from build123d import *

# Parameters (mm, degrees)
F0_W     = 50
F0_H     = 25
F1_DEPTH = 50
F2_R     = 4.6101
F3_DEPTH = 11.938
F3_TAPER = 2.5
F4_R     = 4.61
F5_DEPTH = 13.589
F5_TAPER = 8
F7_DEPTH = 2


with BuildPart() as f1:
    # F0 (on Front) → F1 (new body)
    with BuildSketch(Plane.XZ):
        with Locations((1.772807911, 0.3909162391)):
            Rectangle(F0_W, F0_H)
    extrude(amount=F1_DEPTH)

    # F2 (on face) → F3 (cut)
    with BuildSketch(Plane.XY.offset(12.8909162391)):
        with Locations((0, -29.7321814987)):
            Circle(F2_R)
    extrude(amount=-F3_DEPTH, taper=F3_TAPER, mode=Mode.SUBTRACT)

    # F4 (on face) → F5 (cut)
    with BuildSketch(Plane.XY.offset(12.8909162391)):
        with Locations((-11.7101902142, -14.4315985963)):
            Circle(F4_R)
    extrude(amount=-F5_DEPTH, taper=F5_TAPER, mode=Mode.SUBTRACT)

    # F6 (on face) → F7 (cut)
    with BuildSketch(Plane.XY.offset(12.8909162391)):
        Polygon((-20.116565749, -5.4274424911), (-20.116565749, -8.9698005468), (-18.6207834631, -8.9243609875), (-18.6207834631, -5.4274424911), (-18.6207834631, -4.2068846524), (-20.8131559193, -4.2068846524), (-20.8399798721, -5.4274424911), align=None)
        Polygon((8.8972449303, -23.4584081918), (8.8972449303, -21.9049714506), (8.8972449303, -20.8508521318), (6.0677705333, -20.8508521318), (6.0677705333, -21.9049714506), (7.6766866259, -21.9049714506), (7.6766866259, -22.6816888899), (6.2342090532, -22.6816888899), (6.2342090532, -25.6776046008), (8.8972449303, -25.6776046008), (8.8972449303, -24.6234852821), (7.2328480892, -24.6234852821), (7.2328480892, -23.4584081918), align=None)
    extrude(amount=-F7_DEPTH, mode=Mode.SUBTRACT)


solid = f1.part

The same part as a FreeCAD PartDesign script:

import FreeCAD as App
import Part
import Sketcher
Q = App.Units.Quantity


def add_polygon(sketch, points):
    """Adds a closed chain of lines whose ends are joined by coincident constraints."""
    first, n = sketch.GeometryCount, len(points)
    for a, b in zip(points, points[1:] + points[:1]):
        sketch.addGeometry(Part.LineSegment(App.Vector(*a, 0), App.Vector(*b, 0)), False)
    for i in range(n):
        sketch.addConstraint(Sketcher.Constraint("Coincident", first + i, 2, first + (i + 1) % n, 1))

doc = App.newDocument("Part")
params = doc.addObject("Spreadsheet::Sheet", "Params")
for row, (alias, value) in enumerate([
    ("sketch1_width", "50 mm"),
    ("sketch1_height", "25 mm"),
    ("pad1_length", "50 mm"),
    ("pocket1_length", "11.938 mm"),
    ("pocket1_taper", "-2.5 deg"),
    ("sketch3_diameter", "9.22 mm"),
    ("pocket2_length", "13.589 mm"),
    ("pocket2_taper", "-8 deg"),
    ("pocket3_length", "2 mm"),
], start=1):
    params.set(f"A{row}", alias)
    params.set(f"B{row}", "=" + value)
    params.setAlias(f"B{row}", alias)

body = doc.addObject("PartDesign::Body", "Body")

# Sketch on XZ plane
sketch1 = body.newObject("Sketcher::SketchObject", "Sketch")
sketch1.AttachmentSupport = (doc.getObject("XZ_Plane"), [""])
sketch1.MapMode = "FlatFace"
add_polygon(sketch1, [(-23.227192, 12.890916), (-23.227192, -12.109084), (26.772808, -12.109084), (26.772808, 12.890916)])  # lines 0-3
sketch1.addConstraint(Sketcher.Constraint("Vertical", 0))
sketch1.addConstraint(Sketcher.Constraint("Horizontal", 1))
sketch1.addConstraint(Sketcher.Constraint("Vertical", 2))
sketch1.addConstraint(Sketcher.Constraint("Horizontal", 3))
sketch1.addConstraint(Sketcher.Constraint("DistanceX", 1, 1, 1, 2, Q("50 mm")))
sketch1.addConstraint(Sketcher.Constraint("DistanceY", 0, 2, 0, 1, Q("25 mm")))
sketch1.addConstraint(Sketcher.Constraint("DistanceX", 0, 2, -1, 1, Q("23.227192 mm")))
sketch1.addConstraint(Sketcher.Constraint("DistanceY", 0, 2, -1, 1, Q("12.109084 mm")))
sketch1.setExpression("Constraints[8]", "Params.sketch1_width")
sketch1.setExpression("Constraints[9]", "Params.sketch1_height")
pad1 = body.newObject("PartDesign::Pad", "Pad")
pad1.Profile = sketch1
pad1.setExpression("Length", "Params.pad1_length")

# Sketch on XY plane
sketch2 = body.newObject("Sketcher::SketchObject", "Sketch001")
sketch2.AttachmentSupport = (doc.getObject("XY_Plane"), [""])
sketch2.MapMode = "FlatFace"
sketch2.AttachmentOffset = App.Placement(App.Vector(0, 0, 12.890916), App.Rotation())
sketch2.addGeometry(Part.Circle(App.Vector(0, -29.732181, 0), App.Vector(0, 0, 1), 4.6101), False)
sketch2.addConstraint(Sketcher.Constraint("PointOnObject", 0, 3, -2))
sketch2.addConstraint(Sketcher.Constraint("Diameter", 0, Q("9.2202 mm")))
sketch2.addConstraint(Sketcher.Constraint("DistanceY", 0, 3, -1, 1, Q("29.732181 mm")))
pocket1 = body.newObject("PartDesign::Pocket", "Pocket")
pocket1.Profile = sketch2
pocket1.setExpression("Length", "Params.pocket1_length")
pocket1.setExpression("TaperAngle", "Params.pocket1_taper")

# Sketch on XY plane
sketch3 = body.newObject("Sketcher::SketchObject", "Sketch002")
sketch3.AttachmentSupport = (doc.getObject("XY_Plane"), [""])
sketch3.MapMode = "FlatFace"
sketch3.AttachmentOffset = App.Placement(App.Vector(0, 0, 12.890916), App.Rotation())
sketch3.addGeometry(Part.Circle(App.Vector(-11.71019, -14.431599, 0), App.Vector(0, 0, 1), 4.61), False)
sketch3.addConstraint(Sketcher.Constraint("Diameter", 0, Q("9.22 mm")))
sketch3.addConstraint(Sketcher.Constraint("DistanceY", 0, 3, -1, 1, Q("14.431599 mm")))
sketch3.addConstraint(Sketcher.Constraint("DistanceX", 0, 3, -1, 1, Q("11.71019 mm")))
sketch3.setExpression("Constraints[0]", "Params.sketch3_diameter")
pocket2 = body.newObject("PartDesign::Pocket", "Pocket001")
pocket2.Profile = sketch3
pocket2.setExpression("Length", "Params.pocket2_length")
pocket2.setExpression("TaperAngle", "Params.pocket2_taper")

# Sketch on XY plane
sketch4 = body.newObject("Sketcher::SketchObject", "Sketch003")
sketch4.AttachmentSupport = (doc.getObject("XY_Plane"), [""])
sketch4.MapMode = "FlatFace"
sketch4.AttachmentOffset = App.Placement(App.Vector(0, 0, 12.890916), App.Rotation())
add_polygon(sketch4, [(-20.116566, -5.427442), (-20.116566, -8.969801), (-18.620783, -8.924361), (-18.620783, -4.206885), (-20.813156, -4.206885), (-20.83998, -5.427442)])  # lines 0-5
add_polygon(sketch4, [(8.897245, -23.458408), (8.897245, -20.850852), (6.067771, -20.850852), (6.067771, -21.904971), (7.676687, -21.904971), (7.676687, -22.681689), (6.234209, -22.681689), (6.234209, -25.677605), (8.897245, -25.677605), (8.897245, -24.623485), (7.232848, -24.623485), (7.232848, -23.458408)])  # lines 6-17
sketch4.addConstraint(Sketcher.Constraint("Vertical", 0))
sketch4.addConstraint(Sketcher.Constraint("Vertical", 2))
sketch4.addConstraint(Sketcher.Constraint("Horizontal", 3))
sketch4.addConstraint(Sketcher.Constraint("Horizontal", 5))
sketch4.addConstraint(Sketcher.Constraint("Vertical", 6))
sketch4.addConstraint(Sketcher.Constraint("Horizontal", 7))
sketch4.addConstraint(Sketcher.Constraint("Vertical", 8))
sketch4.addConstraint(Sketcher.Constraint("Horizontal", 9))
sketch4.addConstraint(Sketcher.Constraint("Vertical", 10))
sketch4.addConstraint(Sketcher.Constraint("Horizontal", 11))
sketch4.addConstraint(Sketcher.Constraint("Vertical", 12))
sketch4.addConstraint(Sketcher.Constraint("Horizontal", 13))
sketch4.addConstraint(Sketcher.Constraint("Vertical", 14))
sketch4.addConstraint(Sketcher.Constraint("Horizontal", 15))
sketch4.addConstraint(Sketcher.Constraint("Vertical", 16))
sketch4.addConstraint(Sketcher.Constraint("Horizontal", 17))
sketch4.addConstraint(Sketcher.Constraint("Vertical", 6, 2, 13, 2))
sketch4.addConstraint(Sketcher.Constraint("Equal", 8, 14))
sketch4.addConstraint(Sketcher.Constraint("DistanceY", 0, 2, 0, 1, Q("3.542358 mm")))
sketch4.addConstraint(Sketcher.Constraint("DistanceY", 8, 2, 8, 1, Q("1.054119 mm")))
sketch4.addConstraint(Sketcher.Constraint("DistanceY", 0, 2, -1, 1, Q("8.969801 mm")))
sketch4.addConstraint(Sketcher.Constraint("DistanceX", 3, 2, 3, 1, Q("2.192372 mm")))
sketch4.addConstraint(Sketcher.Constraint("DistanceX", 5, 1, 5, 2, Q("0.723414 mm")))
sketch4.addConstraint(Sketcher.Constraint("DistanceX", 7, 2, 7, 1, Q("2.829474 mm")))
sketch4.addConstraint(Sketcher.Constraint("DistanceX", 9, 1, 9, 2, Q("1.608916 mm")))
sketch4.addConstraint(Sketcher.Constraint("DistanceX", 11, 2, 11, 1, Q("1.442478 mm")))
sketch4.addConstraint(Sketcher.Constraint("DistanceX", 15, 2, 15, 1, Q("1.664397 mm")))
sketch4.addConstraint(Sketcher.Constraint("DistanceY", 2, 1, 2, 2, Q("4.717476 mm")))
sketch4.addConstraint(Sketcher.Constraint("DistanceY", 6, 1, 6, 2, Q("2.607556 mm")))
sketch4.addConstraint(Sketcher.Constraint("DistanceY", 10, 2, 10, 1, Q("0.776717 mm")))
sketch4.addConstraint(Sketcher.Constraint("DistanceY", 12, 2, 12, 1, Q("2.995916 mm")))
sketch4.addConstraint(Sketcher.Constraint("DistanceY", 1, 2, -1, 1, Q("8.924361 mm")))
sketch4.addConstraint(Sketcher.Constraint("DistanceX", 4, 2, -1, 1, Q("20.83998 mm")))
sketch4.addConstraint(Sketcher.Constraint("DistanceX", -1, 1, 7, 2, Q("6.067771 mm")))
sketch4.addConstraint(Sketcher.Constraint("DistanceY", 8, 2, -1, 1, Q("21.904971 mm")))
sketch4.addConstraint(Sketcher.Constraint("DistanceX", 3, 2, 0, 2, Q("0.69659 mm")))
pocket3 = body.newObject("PartDesign::Pocket", "Pocket002")
pocket3.Profile = sketch4
pocket3.setExpression("Length", "Params.pocket3_length")

doc.recompute()
